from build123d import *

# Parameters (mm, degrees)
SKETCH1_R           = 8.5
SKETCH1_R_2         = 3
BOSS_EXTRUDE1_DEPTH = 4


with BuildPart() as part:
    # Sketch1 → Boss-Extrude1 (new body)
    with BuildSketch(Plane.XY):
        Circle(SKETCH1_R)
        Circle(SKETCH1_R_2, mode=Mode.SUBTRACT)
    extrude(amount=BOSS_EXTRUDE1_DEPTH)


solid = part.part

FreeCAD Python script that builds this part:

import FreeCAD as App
import Part
import Sketcher

V = App.Vector

doc = App.newDocument("Part")
params = doc.addObject("Spreadsheet::Sheet", "Params")
for row, (alias, value) in enumerate([
    ("sketch1_diameter", "17 mm"),
    ("sketch1_diameter2", "6 mm"),
    ("pad1_length", "4 mm"),
], start=1):
    params.set(f"A{row}", alias)
    params.set(f"B{row}", "=" + value)
    params.setAlias(f"B{row}", alias)

body = doc.addObject("PartDesign::Body", "Body")

# Sketch on XY plane
sketch1 = doc.addObject("Sketcher::SketchObject", "Sketch")
body.addObject(sketch1)
sketch1.AttachmentSupport = (doc.XY_Plane, [""])
sketch1.MapMode = "FlatFace"
sketch1.addGeometry(Part.Circle(V(0, 0, 0), V(0, 0, 1), 8.5), False)
sketch1.addGeometry(Part.Circle(V(0, 0, 0), V(0, 0, 1), 3), False)
sketch1.addConstraint(Sketcher.Constraint("Coincident", 0, 3, -1, 1))
sketch1.addConstraint(Sketcher.Constraint("Coincident", 1, 3, -1, 1))
sketch1.addConstraint(Sketcher.Constraint("Diameter", 0, 17.0))
sketch1.addConstraint(Sketcher.Constraint("Diameter", 1, 6.0))
sketch1.setExpression("Constraints[2]", "Params.sketch1_diameter")
sketch1.setExpression("Constraints[3]", "Params.sketch1_diameter2")
pad1 = doc.addObject("PartDesign::Pad", "Pad")
body.addObject(pad1)
pad1.Profile = sketch1
pad1.setExpression("Length", "Params.pad1_length")

doc.recompute()
